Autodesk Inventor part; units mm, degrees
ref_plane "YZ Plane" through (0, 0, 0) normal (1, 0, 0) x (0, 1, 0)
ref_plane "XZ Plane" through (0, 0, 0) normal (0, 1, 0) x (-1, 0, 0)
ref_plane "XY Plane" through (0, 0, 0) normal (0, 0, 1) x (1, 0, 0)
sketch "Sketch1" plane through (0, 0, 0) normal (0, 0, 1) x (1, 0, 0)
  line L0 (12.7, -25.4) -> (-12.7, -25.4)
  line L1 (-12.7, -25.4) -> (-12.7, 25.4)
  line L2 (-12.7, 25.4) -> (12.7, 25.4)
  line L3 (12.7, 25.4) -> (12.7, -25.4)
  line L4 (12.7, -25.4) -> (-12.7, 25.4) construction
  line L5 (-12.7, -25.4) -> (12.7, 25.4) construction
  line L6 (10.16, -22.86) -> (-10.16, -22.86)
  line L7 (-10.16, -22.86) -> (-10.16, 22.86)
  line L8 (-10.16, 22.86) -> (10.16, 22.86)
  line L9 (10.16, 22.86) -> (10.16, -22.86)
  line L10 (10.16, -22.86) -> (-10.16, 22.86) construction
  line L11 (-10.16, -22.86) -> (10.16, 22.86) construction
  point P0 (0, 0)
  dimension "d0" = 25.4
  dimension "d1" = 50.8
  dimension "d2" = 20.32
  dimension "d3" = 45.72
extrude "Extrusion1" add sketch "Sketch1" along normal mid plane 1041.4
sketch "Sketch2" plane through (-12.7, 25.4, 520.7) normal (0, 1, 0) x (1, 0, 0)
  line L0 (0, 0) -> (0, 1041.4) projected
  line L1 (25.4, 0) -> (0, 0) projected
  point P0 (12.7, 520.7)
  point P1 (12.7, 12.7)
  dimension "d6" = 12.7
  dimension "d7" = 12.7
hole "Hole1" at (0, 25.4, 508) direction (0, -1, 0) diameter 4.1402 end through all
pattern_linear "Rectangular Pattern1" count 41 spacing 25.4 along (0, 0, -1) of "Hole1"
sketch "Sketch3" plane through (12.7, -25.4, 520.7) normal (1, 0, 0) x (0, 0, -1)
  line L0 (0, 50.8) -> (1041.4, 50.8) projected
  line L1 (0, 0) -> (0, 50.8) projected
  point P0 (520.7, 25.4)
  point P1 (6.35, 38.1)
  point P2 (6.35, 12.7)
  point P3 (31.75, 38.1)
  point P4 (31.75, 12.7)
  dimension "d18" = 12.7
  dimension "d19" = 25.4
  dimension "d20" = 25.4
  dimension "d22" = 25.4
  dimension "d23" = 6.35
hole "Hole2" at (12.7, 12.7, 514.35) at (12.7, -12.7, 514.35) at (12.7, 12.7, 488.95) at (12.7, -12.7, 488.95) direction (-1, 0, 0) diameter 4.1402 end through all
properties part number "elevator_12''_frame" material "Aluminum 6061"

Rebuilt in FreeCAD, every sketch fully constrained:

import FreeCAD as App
import Part
import Sketcher
Q = App.Units.Quantity

doc = App.newDocument("Part")
body = doc.addObject("PartDesign::Body", "Body")

sketch1 = body.newObject("Sketcher::SketchObject", "Sketch")
sketch1.AttachmentSupport = (doc.getObject("XY_Plane"), [""])
sketch1.MapMode = "FlatFace"
sketch1.addGeometry([
    Part.LineSegment(App.Vector(-13, -25, 0), App.Vector(13, -25, 0)),
    Part.LineSegment(App.Vector(13, -25, 0), App.Vector(13, 25, 0)),
    Part.LineSegment(App.Vector(13, 25, 0), App.Vector(-13, 25, 0)),
    Part.LineSegment(App.Vector(-13, 25, 0), App.Vector(-13, -25, 0)),
    Part.LineSegment(App.Vector(10, 23, 0), App.Vector(10, -23, 0)),
    Part.LineSegment(App.Vector(10, -23, 0), App.Vector(-10, -23, 0)),
    Part.LineSegment(App.Vector(-10, -23, 0), App.Vector(-10, 23, 0)),
    Part.LineSegment(App.Vector(-10, 23, 0), App.Vector(10, 23, 0)),
], False)
sketch1.addConstraint([
    Sketcher.Constraint("Coincident", 0, 2, 1, 1),
    Sketcher.Constraint("Coincident", 1, 2, 2, 1),
    Sketcher.Constraint("Coincident", 2, 2, 3, 1),
    Sketcher.Constraint("Coincident", 3, 2, 0, 1),
    Sketcher.Constraint("Coincident", 4, 2, 5, 1),
    Sketcher.Constraint("Coincident", 5, 2, 6, 1),
    Sketcher.Constraint("Coincident", 6, 2, 7, 1),
    Sketcher.Constraint("Coincident", 7, 2, 4, 1),
    Sketcher.Constraint("Horizontal", 0),
    Sketcher.Constraint("Vertical", 1),
    Sketcher.Constraint("Horizontal", 2),
    Sketcher.Constraint("Vertical", 3),
    Sketcher.Constraint("Vertical", 4),
    Sketcher.Constraint("Horizontal", 5),
    Sketcher.Constraint("Vertical", 6),
    Sketcher.Constraint("Horizontal", 7),
    Sketcher.Constraint("Symmetric", 0, 2, 2, 2, -1, 1),
    Sketcher.Constraint("Symmetric", 4, 2, 6, 2, -1, 1),
    Sketcher.Constraint("DistanceX", 0, 1, 0, 2, Q("1 in")),
    Sketcher.Constraint("DistanceY", 1, 1, 1, 2, Q("2 in")),
    Sketcher.Constraint("DistanceX", 5, 2, 5, 1, Q("0.8 in")),
    Sketcher.Constraint("DistanceY", 4, 2, 4, 1, Q("1.8 in")),
])
pad1 = body.newObject("PartDesign::Pad", "Pad")
pad1.Profile = sketch1
pad1.Length = Q("41 in")
pad1.Midplane = True

sketch2 = body.newObject("Sketcher::SketchObject", "Sketch001")
sketch2.AttachmentSupport = (doc.getObject("XZ_Plane"), [""])
sketch2.MapMode = "FlatFace"
sketch2.AttachmentOffset = App.Placement(App.Vector(0, 0, -1 * 25.4), App.Rotation())
sketch2.addGeometry(Part.Circle(App.Vector(0, 508, 0), App.Vector(0, 0, 1), 2.1), False)
sketch2.addConstraint([
    Sketcher.Constraint("PointOnObject", 0, 3, -2),
    Sketcher.Constraint("Diameter", 0, Q("0.163 in")),
    Sketcher.Constraint("DistanceY", -1, 1, 0, 3, Q("20 in")),
])
doc.recompute()
hole = body.newObject("PartDesign::Hole", "Hole")
hole.Profile = sketch2
hole.ThreadType = "None"
hole.Diameter = Q("0.163 in")
hole.DepthType = "ThroughAll"
hole.Reversed = True
doc.recompute()

linearpattern = body.newObject("PartDesign::LinearPattern", "LinearPattern")
linearpattern.Originals = [hole]
linearpattern.Direction = (doc.getObject("Z_Axis"), [""])
linearpattern.Mode = "offset"
linearpattern.Offset = Q("1 in")
linearpattern.Occurrences = 41
linearpattern.Reversed = True
body.Tip = linearpattern

sketch3 = body.newObject("Sketcher::SketchObject", "Sketch002")
sketch3.AttachmentSupport = (doc.getObject("YZ_Plane"), [""])
sketch3.MapMode = "FlatFace"
sketch3.AttachmentOffset = App.Placement(App.Vector(0, 0, 0.5 * 25.4), App.Rotation())
sketch3.addGeometry([
    Part.Circle(App.Vector(12.7, 514.4, 0), App.Vector(0, 0, 1), 2.1),
    Part.Circle(App.Vector(-12.7, 514.4, 0), App.Vector(0, 0, 1), 2.1),
    Part.Circle(App.Vector(12.7, 488.9, 0), App.Vector(0, 0, 1), 2.1),
    Part.Circle(App.Vector(-12.7, 488.9, 0), App.Vector(0, 0, 1), 2.1),
], False)
sketch3.addConstraint([
    Sketcher.Constraint("Equal", 0, 1),
    Sketcher.Constraint("Equal", 1, 2),
    Sketcher.Constraint("Equal", 2, 3),
    Sketcher.Constraint("Symmetric", 0, 3, 1, 3, -2),
    Sketcher.Constraint("Symmetric", 2, 3, 3, 3, -2),
    Sketcher.Constraint("Vertical", 0, 3, 2, 3),
    Sketcher.Constraint("Diameter", 0, Q("0.163 in")),
    Sketcher.Constraint("DistanceX", 1, 3, 0, 3, Q("1 in")),
    Sketcher.Constraint("DistanceY", 2, 3, 0, 3, Q("1 in")),
    Sketcher.Constraint("DistanceY", -1, 1, 0, 3, Q("20.25 in")),
])
doc.recompute()
hole2 = body.newObject("PartDesign::Hole", "Hole001")
hole2.Profile = sketch3
hole2.ThreadType = "None"
hole2.Diameter = Q("0.163 in")
hole2.DepthType = "ThroughAll"

doc.recompute()
